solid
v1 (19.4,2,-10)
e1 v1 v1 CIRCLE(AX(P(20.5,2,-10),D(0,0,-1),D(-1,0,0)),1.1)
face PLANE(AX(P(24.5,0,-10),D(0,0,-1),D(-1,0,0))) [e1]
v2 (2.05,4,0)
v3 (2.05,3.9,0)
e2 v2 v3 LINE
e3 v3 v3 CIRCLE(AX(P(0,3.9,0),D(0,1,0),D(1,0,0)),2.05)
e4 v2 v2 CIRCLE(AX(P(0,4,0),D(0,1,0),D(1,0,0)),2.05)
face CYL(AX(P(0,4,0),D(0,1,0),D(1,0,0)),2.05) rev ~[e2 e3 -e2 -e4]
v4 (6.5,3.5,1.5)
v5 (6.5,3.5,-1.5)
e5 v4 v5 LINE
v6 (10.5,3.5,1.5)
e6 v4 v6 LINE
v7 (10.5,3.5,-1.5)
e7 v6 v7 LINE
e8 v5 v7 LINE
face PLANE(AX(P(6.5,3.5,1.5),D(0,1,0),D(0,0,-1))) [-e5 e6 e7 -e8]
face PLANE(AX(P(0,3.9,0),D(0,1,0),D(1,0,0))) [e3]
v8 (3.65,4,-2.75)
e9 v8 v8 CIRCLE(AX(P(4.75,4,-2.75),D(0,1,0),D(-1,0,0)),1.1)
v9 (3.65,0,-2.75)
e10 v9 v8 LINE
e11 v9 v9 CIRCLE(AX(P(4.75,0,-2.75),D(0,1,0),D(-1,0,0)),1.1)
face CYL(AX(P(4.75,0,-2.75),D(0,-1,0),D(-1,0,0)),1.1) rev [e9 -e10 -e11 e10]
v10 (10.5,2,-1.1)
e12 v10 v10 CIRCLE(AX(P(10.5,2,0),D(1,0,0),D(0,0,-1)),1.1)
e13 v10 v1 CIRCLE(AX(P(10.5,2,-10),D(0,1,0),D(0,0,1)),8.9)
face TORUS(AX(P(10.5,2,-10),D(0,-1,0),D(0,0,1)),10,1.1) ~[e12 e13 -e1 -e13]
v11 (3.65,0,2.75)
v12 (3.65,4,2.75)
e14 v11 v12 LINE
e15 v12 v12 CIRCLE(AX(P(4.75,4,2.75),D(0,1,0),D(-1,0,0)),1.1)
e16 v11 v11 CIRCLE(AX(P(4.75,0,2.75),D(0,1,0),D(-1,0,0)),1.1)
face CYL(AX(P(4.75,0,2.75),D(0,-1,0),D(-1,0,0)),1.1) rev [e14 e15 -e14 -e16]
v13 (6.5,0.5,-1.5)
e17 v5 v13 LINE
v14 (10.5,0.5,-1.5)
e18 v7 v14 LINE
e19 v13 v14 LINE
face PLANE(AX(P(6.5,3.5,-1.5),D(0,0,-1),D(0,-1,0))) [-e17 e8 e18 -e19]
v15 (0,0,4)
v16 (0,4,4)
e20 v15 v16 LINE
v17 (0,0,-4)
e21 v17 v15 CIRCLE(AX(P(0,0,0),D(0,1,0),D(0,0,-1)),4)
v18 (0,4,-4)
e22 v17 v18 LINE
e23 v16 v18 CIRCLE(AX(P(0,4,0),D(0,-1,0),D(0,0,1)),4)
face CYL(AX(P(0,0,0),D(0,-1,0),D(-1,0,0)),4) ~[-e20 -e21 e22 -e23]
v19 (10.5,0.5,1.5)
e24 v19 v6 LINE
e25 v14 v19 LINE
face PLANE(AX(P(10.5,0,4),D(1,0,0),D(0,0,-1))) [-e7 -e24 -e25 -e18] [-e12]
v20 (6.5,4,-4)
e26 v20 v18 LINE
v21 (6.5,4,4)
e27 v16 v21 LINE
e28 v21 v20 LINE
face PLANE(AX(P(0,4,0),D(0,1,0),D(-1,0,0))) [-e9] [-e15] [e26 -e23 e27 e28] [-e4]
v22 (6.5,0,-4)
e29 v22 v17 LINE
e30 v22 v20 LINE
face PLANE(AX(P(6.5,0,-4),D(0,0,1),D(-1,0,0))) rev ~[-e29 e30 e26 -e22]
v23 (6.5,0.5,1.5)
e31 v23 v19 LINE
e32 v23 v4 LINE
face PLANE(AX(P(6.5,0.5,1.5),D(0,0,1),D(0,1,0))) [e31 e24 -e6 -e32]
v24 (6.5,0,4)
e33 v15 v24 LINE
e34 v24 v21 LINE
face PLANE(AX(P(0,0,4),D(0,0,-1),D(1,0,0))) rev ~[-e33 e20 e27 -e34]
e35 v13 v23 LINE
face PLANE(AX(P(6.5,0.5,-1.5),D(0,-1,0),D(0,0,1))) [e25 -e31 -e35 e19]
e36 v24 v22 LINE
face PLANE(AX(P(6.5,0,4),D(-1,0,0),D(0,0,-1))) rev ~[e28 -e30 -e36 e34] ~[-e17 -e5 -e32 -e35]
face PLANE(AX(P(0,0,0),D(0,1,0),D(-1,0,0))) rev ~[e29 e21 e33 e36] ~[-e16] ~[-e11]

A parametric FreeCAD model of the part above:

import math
import FreeCAD as App
import Part
import Sketcher
from FreeCAD import Vector


def add_polygon(sketch, points):
    """Adds a closed chain of lines whose ends are joined by coincident constraints."""
    first, n = sketch.GeometryCount, len(points)
    for a, b in zip(points, points[1:] + points[:1]):
        sketch.addGeometry(Part.LineSegment(App.Vector(*a, 0), App.Vector(*b, 0)), False)
    for i in range(n):
        sketch.addConstraint(Sketcher.Constraint("Coincident", first + i, 2, first + (i + 1) % n, 1))

doc = App.newDocument("Part")
params = doc.addObject("Spreadsheet::Sheet", "Params")
for row, (alias, value) in enumerate([
    ("sketch1_radius", "4 mm"),
    ("sketch1_diameter", "2.2 mm"),
    ("sketch1_width", "6.5 mm"),
    ("pad1_length", "4 mm"),
    ("sketch2_width", "3 mm"),
    ("pad2_length", "4 mm"),
    ("sketch3_diameter", "4.1 mm"),
    ("pocket1_length", "0.1 mm"),
    ("sketch4_diameter", "2.2 mm"),
    ("sketch4_width", "10 mm"),
    ("revolution_angle", "90 deg"),
], start=1):
    params.set(f"A{row}", alias)
    params.set(f"B{row}", "=" + value)
    params.setAlias(f"B{row}", alias)

body = doc.addObject("PartDesign::Body", "Body")

sketch1 = body.newObject("Sketcher::SketchObject", "Sketch")
sketch1.AttachmentSupport = (doc.getObject("XZ_Plane"), [""])
sketch1.MapMode = "FlatFace"
sketch1.addGeometry([
    Part.ArcOfCircle(Part.Circle(Vector(0, 0, 0), Vector(0, 0, 1), 4), math.radians(90), math.radians(270)),
    Part.LineSegment(Vector(0, 4, 0), Vector(6.5, 4, 0)),
    Part.LineSegment(Vector(6.5, 4, 0), Vector(6.5, -4, 0)),
    Part.LineSegment(Vector(6.5, -4, 0), Vector(0, -4, 0)),
    Part.Circle(Vector(4.75, 2.75, 0), Vector(0, 0, 1), 1.1),
    Part.Circle(Vector(4.75, -2.75, 0), Vector(0, 0, 1), 1.1),
], False)
sketch1.addConstraint([
    Sketcher.Constraint("Tangent", 0, 1, 1, 1),
    Sketcher.Constraint("Coincident", 1, 2, 2, 1),
    Sketcher.Constraint("Coincident", 2, 2, 3, 1),
    Sketcher.Constraint("Tangent", 3, 2, 0, 2),
    Sketcher.Constraint("Horizontal", 1),
    Sketcher.Constraint("Vertical", 2),
    Sketcher.Constraint("Horizontal", 3),
    Sketcher.Constraint("Coincident", 0, 3, -1, 1),
    Sketcher.Constraint("Equal", 4, 5),
    Sketcher.Constraint("Symmetric", 4, 3, 5, 3, -1),
    Sketcher.Constraint("Radius", 0, 4.0),
    Sketcher.Constraint("Diameter", 4, 2.2),
    Sketcher.Constraint("DistanceX", 1, 1, 1, 2, 6.5),
    Sketcher.Constraint("DistanceY", 5, 3, 4, 3, 5.5),
    Sketcher.Constraint("DistanceX", 4, 3, 1, 2, 1.75),
])
sketch1.setExpression("Constraints[10]", "Params.sketch1_radius")
sketch1.setExpression("Constraints[11]", "Params.sketch1_diameter")
sketch1.setExpression("Constraints[12]", "Params.sketch1_width")
pad1 = body.newObject("PartDesign::Pad", "Pad")
pad1.Profile = sketch1
pad1.setExpression("Length", "Params.pad1_length")
pad1.Reversed = True

sketch2 = body.newObject("Sketcher::SketchObject", "Sketch001")
sketch2.AttachmentSupport = (doc.getObject("YZ_Plane"), [""])
sketch2.MapMode = "FlatFace"
sketch2.AttachmentOffset = App.Placement(Vector(0, 0, 6.5), App.Rotation())
add_polygon(sketch2, [(3.5, -1.5), (3.5, 1.5), (0.5, 1.5), (0.5, -1.5)])
sketch2.addConstraint([
    Sketcher.Constraint("Vertical", 0),
    Sketcher.Constraint("Horizontal", 1),
    Sketcher.Constraint("Vertical", 2),
    Sketcher.Constraint("Horizontal", 3),
    Sketcher.Constraint("Equal", 3, 0),
    Sketcher.Constraint("DistanceX", 1, 2, 1, 1, 3.0),
    Sketcher.Constraint("DistanceX", -1, 1, 1, 2, 0.5),
    Sketcher.Constraint("DistanceY", -1, 1, 0, 2, 1.5),
])
sketch2.setExpression("Constraints[9]", "Params.sketch2_width")
pad2 = body.newObject("PartDesign::Pad", "Pad001")
pad2.Profile = sketch2
pad2.setExpression("Length", "Params.pad2_length")

sketch3 = body.newObject("Sketcher::SketchObject", "Sketch002")
sketch3.AttachmentSupport = (doc.getObject("XZ_Plane"), [""])
sketch3.MapMode = "FlatFace"
sketch3.AttachmentOffset = App.Placement(Vector(0, 0, -4), App.Rotation())
sketch3.addGeometry(Part.Circle(Vector(0, 0, 0), Vector(0, 0, 1), 2.05), False)
sketch3.addConstraint([
    Sketcher.Constraint("Coincident", 0, 3, -1, 1),
    Sketcher.Constraint("Diameter", 0, 4.1),
])
sketch3.setExpression("Constraints[1]", "Params.sketch3_diameter")
pocket1 = body.newObject("PartDesign::Pocket", "Pocket")
pocket1.Profile = sketch3
pocket1.setExpression("Length", "Params.pocket1_length")
pocket1.Reversed = True

sketch4 = body.newObject("Sketcher::SketchObject", "Sketch003")
sketch4.AttachmentSupport = (doc.getObject("YZ_Plane"), [""])
sketch4.MapMode = "FlatFace"
sketch4.AttachmentOffset = App.Placement(Vector(0, 0, 10.5), App.Rotation())
sketch4.addGeometry(Part.Circle(Vector(2, 0, 0), Vector(0, 0, 1), 1.1), False)
sketch4.addGeometry(Part.LineSegment(Vector(2, -10, 0), Vector(12, -10, 0)), True)
sketch4.addConstraint([
    Sketcher.Constraint("Horizontal", 1),
    Sketcher.Constraint("PointOnObject", 0, 3, -1),
    Sketcher.Constraint("Vertical", 0, 3, 1, 1),
    Sketcher.Constraint("Diameter", 0, 2.2),
    Sketcher.Constraint("DistanceX", 1, 1, 1, 2, 10.0),
    Sketcher.Constraint("DistanceX", -1, 1, 0, 3, 2.0),
    Sketcher.Constraint("DistanceY", 1, 1, -1, 1, 10.0),
])
sketch4.setExpression("Constraints[3]", "Params.sketch4_diameter")
sketch4.setExpression("Constraints[4]", "Params.sketch4_width")
revolution = body.newObject("PartDesign::Revolution", "Revolution")
revolution.Profile = sketch4
revolution.ReferenceAxis = (sketch4, ["Axis0"])
revolution.setExpression("Angle", "Params.revolution_angle")

doc.recompute()
